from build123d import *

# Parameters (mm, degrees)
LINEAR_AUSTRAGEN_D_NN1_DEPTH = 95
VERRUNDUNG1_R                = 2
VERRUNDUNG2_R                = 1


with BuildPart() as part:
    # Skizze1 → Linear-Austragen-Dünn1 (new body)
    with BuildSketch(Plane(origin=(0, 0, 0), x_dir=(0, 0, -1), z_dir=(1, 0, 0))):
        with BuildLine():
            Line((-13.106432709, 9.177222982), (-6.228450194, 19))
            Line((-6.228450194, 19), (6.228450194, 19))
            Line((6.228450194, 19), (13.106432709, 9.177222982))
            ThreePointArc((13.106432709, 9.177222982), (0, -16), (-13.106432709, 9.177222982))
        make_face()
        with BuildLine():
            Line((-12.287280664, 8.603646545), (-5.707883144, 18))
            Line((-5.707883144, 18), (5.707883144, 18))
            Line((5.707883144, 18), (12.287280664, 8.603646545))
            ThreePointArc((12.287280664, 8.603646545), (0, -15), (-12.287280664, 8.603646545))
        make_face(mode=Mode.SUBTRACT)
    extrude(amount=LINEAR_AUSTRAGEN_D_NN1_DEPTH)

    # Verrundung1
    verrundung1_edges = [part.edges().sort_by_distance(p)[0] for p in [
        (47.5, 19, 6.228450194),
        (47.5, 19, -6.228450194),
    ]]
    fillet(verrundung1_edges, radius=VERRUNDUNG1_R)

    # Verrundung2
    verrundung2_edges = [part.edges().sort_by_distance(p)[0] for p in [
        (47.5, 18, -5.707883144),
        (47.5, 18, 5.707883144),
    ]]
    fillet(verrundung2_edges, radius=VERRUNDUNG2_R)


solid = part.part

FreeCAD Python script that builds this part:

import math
import FreeCAD as App
import Part
import Sketcher

V = App.Vector
Q = App.Units.Quantity


def edges_at(feature, points):
    """Names of the edges that pass closest to the given points."""
    edges = feature.Shape.Edges
    near = lambda p: min(range(len(edges)), key=lambda i: edges[i].distToShape(Part.Vertex(*p))[0])
    return sorted({f"Edge{near(p) + 1}" for p in points})

doc = App.newDocument("Part")
params = doc.addObject("Spreadsheet::Sheet", "Params")
for row, (alias, value) in enumerate([
    ("sketch1_radius", "16 mm"),
    ("sketch1_radius2", "15 mm"),
    ("pad1_length", "95 mm"),
    ("fillet_radius", "2 mm"),
    ("fillet2_radius", "1 mm"),
], start=1):
    params.set(f"A{row}", alias)
    params.set(f"B{row}", "=" + value)
    params.setAlias(f"B{row}", alias)

body = doc.addObject("PartDesign::Body", "Body")

# Sketch on YZ plane
sketch1 = body.newObject("Sketcher::SketchObject", "Sketch")
sketch1.AttachmentSupport = (doc.getObject("YZ_Plane"), [""])
sketch1.MapMode = "FlatFace"
sketch1.addGeometry([
    Part.LineSegment(V(19, 6, 0), V(9, 13, 0)),  # 0
    Part.ArcOfCircle(Part.Circle(V(0, 0, 0), V(0, 0, 1), 16), math.radians(55), math.radians(305)),  # 1
    Part.LineSegment(V(9, -13, 0), V(19, -6, 0)),  # 2
    Part.LineSegment(V(19, -6, 0), V(19, 6, 0)),  # 3
    Part.LineSegment(V(9, 12, 0), V(18, 6, 0)),  # 4
    Part.LineSegment(V(18, 6, 0), V(18, -6, 0)),  # 5
    Part.LineSegment(V(18, -6, 0), V(9, -12, 0)),  # 6
    Part.ArcOfCircle(Part.Circle(V(0, 0, 0), V(0, 0, 1), 15), math.radians(55), math.radians(305)),  # 7
], False)
sketch1.addConstraint([
    Sketcher.Constraint("Tangent", 0, 2, 1, 1),
    Sketcher.Constraint("Tangent", 1, 2, 2, 1),
    Sketcher.Constraint("Coincident", 2, 2, 3, 1),
    Sketcher.Constraint("Coincident", 3, 2, 0, 1),
    Sketcher.Constraint("Coincident", 4, 2, 5, 1),
    Sketcher.Constraint("Coincident", 5, 2, 6, 1),
    Sketcher.Constraint("Tangent", 6, 2, 7, 2),
    Sketcher.Constraint("Tangent", 7, 1, 4, 1),
    Sketcher.Constraint("Vertical", 3),
    Sketcher.Constraint("Vertical", 5),
    Sketcher.Constraint("Coincident", 1, 3, -1, 1),
    Sketcher.Constraint("Coincident", 7, 3, -1, 1),
    Sketcher.Constraint("Parallel", 0, 4),
    Sketcher.Constraint("Parallel", 2, 6),
    Sketcher.Constraint("Vertical", 0, 2, 1, 2),
    Sketcher.Constraint("Radius", 1, 16.0),
    Sketcher.Constraint("Radius", 7, 15.0),
    Sketcher.Constraint("Angle", 0, Q("145 deg")),
    Sketcher.Constraint("DistanceX", -1, 1, 2, 2, 19.0),
    Sketcher.Constraint("DistanceX", -1, 1, 4, 2, 18.0),
])
sketch1.setExpression("Constraints[15]", "Params.sketch1_radius")
sketch1.setExpression("Constraints[16]", "Params.sketch1_radius2")
pad1 = body.newObject("PartDesign::Pad", "Pad")
pad1.Profile = sketch1
pad1.setExpression("Length", "Params.pad1_length")
doc.recompute()

fillet = body.newObject("PartDesign::Fillet", "Fillet")
fillet.Base = (pad1, edges_at(pad1, [(47.5, 19, 6.228), (47.5, 19, -6.228)]))
fillet.setExpression("Radius", "Params.fillet_radius")
doc.recompute()

fillet2 = body.newObject("PartDesign::Fillet", "Fillet001")
fillet2.Base = (fillet, edges_at(fillet, [(47.5, 18, -5.708), (47.5, 18, 5.708)]))
fillet2.setExpression("Radius", "Params.fillet2_radius")

doc.recompute()
